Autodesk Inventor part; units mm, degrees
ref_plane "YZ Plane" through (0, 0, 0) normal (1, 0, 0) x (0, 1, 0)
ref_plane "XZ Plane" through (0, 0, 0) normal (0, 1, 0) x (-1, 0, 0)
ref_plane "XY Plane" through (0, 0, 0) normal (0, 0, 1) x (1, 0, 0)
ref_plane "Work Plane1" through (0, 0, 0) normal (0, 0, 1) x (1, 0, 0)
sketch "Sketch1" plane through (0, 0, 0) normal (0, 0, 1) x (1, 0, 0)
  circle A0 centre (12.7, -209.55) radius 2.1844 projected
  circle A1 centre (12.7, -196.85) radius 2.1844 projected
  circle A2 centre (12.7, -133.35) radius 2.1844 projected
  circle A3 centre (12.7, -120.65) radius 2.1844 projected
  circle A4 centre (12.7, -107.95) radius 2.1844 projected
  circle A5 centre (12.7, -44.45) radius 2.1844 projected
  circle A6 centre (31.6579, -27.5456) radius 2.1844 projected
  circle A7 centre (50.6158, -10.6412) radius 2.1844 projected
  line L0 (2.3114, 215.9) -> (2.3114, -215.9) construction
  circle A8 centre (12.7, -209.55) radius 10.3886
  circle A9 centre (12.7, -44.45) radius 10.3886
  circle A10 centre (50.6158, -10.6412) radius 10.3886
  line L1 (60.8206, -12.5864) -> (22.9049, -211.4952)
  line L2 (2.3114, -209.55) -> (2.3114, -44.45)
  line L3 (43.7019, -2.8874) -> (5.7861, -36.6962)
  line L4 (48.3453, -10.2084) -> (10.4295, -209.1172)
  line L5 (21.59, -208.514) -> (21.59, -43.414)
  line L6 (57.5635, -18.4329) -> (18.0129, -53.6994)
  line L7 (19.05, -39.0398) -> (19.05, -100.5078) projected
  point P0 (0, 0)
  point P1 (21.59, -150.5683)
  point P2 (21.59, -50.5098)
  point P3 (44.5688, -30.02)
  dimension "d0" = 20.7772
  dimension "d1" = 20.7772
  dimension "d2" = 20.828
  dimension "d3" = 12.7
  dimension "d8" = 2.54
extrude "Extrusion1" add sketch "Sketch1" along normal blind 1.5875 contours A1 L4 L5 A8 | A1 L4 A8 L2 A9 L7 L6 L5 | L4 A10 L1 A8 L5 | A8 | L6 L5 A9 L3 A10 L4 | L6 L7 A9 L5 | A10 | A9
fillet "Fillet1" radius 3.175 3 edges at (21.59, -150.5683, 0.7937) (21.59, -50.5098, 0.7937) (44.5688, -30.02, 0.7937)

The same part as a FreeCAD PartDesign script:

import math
import FreeCAD as App
import Part
import Sketcher

V = App.Vector
Q = App.Units.Quantity


def edges_at(feature, points):
    """Names of the edges that pass closest to the given points."""
    edges = feature.Shape.Edges
    near = lambda p: min(range(len(edges)), key=lambda i: edges[i].distToShape(Part.Vertex(*p))[0])
    return sorted({f"Edge{near(p) + 1}" for p in points})


def add_polygon(sketch, points):
    """Adds a closed chain of lines whose ends are joined by coincident constraints."""
    first, n = sketch.GeometryCount, len(points)
    for a, b in zip(points, points[1:] + points[:1]):
        sketch.addGeometry(Part.LineSegment(App.Vector(*a, 0), App.Vector(*b, 0)), False)
    for i in range(n):
        sketch.addConstraint(Sketcher.Constraint("Coincident", first + i, 2, first + (i + 1) % n, 1))

doc = App.newDocument("Part")
body = doc.addObject("PartDesign::Body", "Body")

sketch1 = doc.addObject("Sketcher::SketchObject", "Sketch")
body.addObject(sketch1)
sketch1.AttachmentSupport = (doc.XY_Plane, [""])
sketch1.MapMode = "FlatFace"
sketch1.addGeometry(Part.LineSegment(V(2.3114, -44.45, 0), V(2.3114, -209.55, 0)), False)
sketch1.addGeometry(Part.ArcOfCircle(Part.Circle(V(12.7, -209.55, 0), V(0, 0, 1), 10.3886), math.radians(180), math.radians(349.208066)), False)
sketch1.addGeometry(Part.LineSegment(V(22.9049, -211.4952, 0), V(60.8206, -12.5864, 0)), False)
sketch1.addGeometry(Part.ArcOfCircle(Part.Circle(V(50.6158, -10.6412, 0), V(0, 0, 1), 10.3886), math.radians(-10.792038), math.radians(131.722715)), False)
sketch1.addGeometry(Part.LineSegment(V(43.7019, -2.8874, 0), V(5.7861, -36.6962, 0)), False)
sketch1.addGeometry(Part.ArcOfCircle(Part.Circle(V(12.7, -44.45, 0), V(0, 0, 1), 10.3886), math.radians(131.722715), math.radians(180)), False)
sketch1.addGeometry(Part.Circle(V(12.7, -196.85, 0), V(0, 0, 1), 2.1844), False)
sketch1.addGeometry(Part.Circle(V(12.7, -120.65, 0), V(0, 0, 1), 2.1844), False)
add_polygon(sketch1, [(21.59, -150.568477), (21.59, -50.50977), (44.568834, -30.019991)])
sketch1.addGeometry(Part.Circle(V(12.7, -107.95, 0), V(0, 0, 1), 2.1844), False)
sketch1.addGeometry(Part.Circle(V(12.7, -133.35, 0), V(0, 0, 1), 2.1844), False)
sketch1.addGeometry(Part.Circle(V(12.7, -209.55, 0), V(0, 0, 1), 2.1844), False)
sketch1.addGeometry(Part.Circle(V(12.7, -44.45, 0), V(0, 0, 1), 2.1844), False)
sketch1.addGeometry(Part.Circle(V(31.6579, -27.5456, 0), V(0, 0, 1), 2.1844), False)
sketch1.addGeometry(Part.Circle(V(50.6158, -10.6412, 0), V(0, 0, 1), 2.1844), False)
sketch1.addConstraint(Sketcher.Constraint("Tangent", 0, 2, 1, 1))
sketch1.addConstraint(Sketcher.Constraint("Tangent", 1, 2, 2, 1))
sketch1.addConstraint(Sketcher.Constraint("Tangent", 2, 2, 3, 1))
sketch1.addConstraint(Sketcher.Constraint("Tangent", 3, 2, 4, 1))
sketch1.addConstraint(Sketcher.Constraint("Tangent", 4, 2, 5, 1))
sketch1.addConstraint(Sketcher.Constraint("Tangent", 5, 2, 0, 1))
sketch1.addConstraint(Sketcher.Constraint("Vertical", 0))
sketch1.addConstraint(Sketcher.Constraint("Vertical", 8))
sketch1.addConstraint(Sketcher.Constraint("Coincident", 13, 3, 1, 3))
sketch1.addConstraint(Sketcher.Constraint("Coincident", 14, 3, 5, 3))
sketch1.addConstraint(Sketcher.Constraint("Coincident", 16, 3, 3, 3))
sketch1.addConstraint(Sketcher.Constraint("Equal", 1, 3))
sketch1.addConstraint(Sketcher.Constraint("Equal", 3, 5))
sketch1.addConstraint(Sketcher.Constraint("Equal", 6, 7))
sketch1.addConstraint(Sketcher.Constraint("Equal", 7, 11))
sketch1.addConstraint(Sketcher.Constraint("Equal", 11, 12))
sketch1.addConstraint(Sketcher.Constraint("Equal", 12, 13))
sketch1.addConstraint(Sketcher.Constraint("Equal", 13, 14))
sketch1.addConstraint(Sketcher.Constraint("Equal", 14, 15))
sketch1.addConstraint(Sketcher.Constraint("Equal", 15, 16))
sketch1.addConstraint(Sketcher.Constraint("Parallel", 4, 9))
sketch1.addConstraint(Sketcher.Constraint("Parallel", 2, 10))
sketch1.addConstraint(Sketcher.Constraint("Vertical", 5, 3, 6, 3))
sketch1.addConstraint(Sketcher.Constraint("Vertical", 6, 3, 7, 3))
sketch1.addConstraint(Sketcher.Constraint("Vertical", 7, 3, 11, 3))
sketch1.addConstraint(Sketcher.Constraint("Vertical", 11, 3, 12, 3))
sketch1.addConstraint(Sketcher.Constraint("Radius", 1, Q("0.409 in")))
sketch1.addConstraint(Sketcher.Constraint("DistanceX", -1, 1, 1, 3, Q("0.5 in")))
sketch1.addConstraint(Sketcher.Constraint("DistanceY", 1, 3, 6, 3, Q("0.5 in")))
sketch1.addConstraint(Sketcher.Constraint("DistanceY", 7, 3, 11, 3, Q("0.5 in")))
sketch1.addConstraint(Sketcher.Constraint("DistanceY", 12, 3, 7, 3, Q("0.5 in")))
sketch1.addConstraint(Sketcher.Constraint("Distance", 4, Q("2 in")))
sketch1.addConstraint(Sketcher.Constraint("Diameter", 6, Q("0.172 in")))
sketch1.addConstraint(Sketcher.Constraint("DistanceY", 0, 2, 0, 1, Q("6.5 in")))
sketch1.addConstraint(Sketcher.Constraint("DistanceY", 6, 3, 7, 3, Q("3 in")))
sketch1.addConstraint(Sketcher.Constraint("DistanceY", 1, 3, -1, 1, Q("8.25 in")))
sketch1.addConstraint(Sketcher.Constraint("DistanceX", -1, 1, 8, 2, Q("0.85 in")))
sketch1.addConstraint(Sketcher.Constraint("Distance", 9, Q("1.2121 in")))
sketch1.addConstraint(Sketcher.Constraint("DistanceX", -1, 1, 2, 2, Q("2.3945 in")))
sketch1.addConstraint(Sketcher.Constraint("DistanceY", 9, 2, -1, 1, Q("1.1819 in")))
sketch1.addConstraint(Sketcher.Constraint("DistanceY", 15, 3, 3, 2, Q("0.9708 in")))
sketch1.addConstraint(Sketcher.Constraint("DistanceX", 15, 3, 9, 2, Q("0.5083 in")))
pad1 = doc.addObject("PartDesign::Pad", "Pad")
body.addObject(pad1)
pad1.Profile = sketch1
pad1.Length = Q("0.0625 in")
doc.recompute()

fillet = doc.addObject("PartDesign::Fillet", "Fillet")
body.addObject(fillet)
fillet.Base = (pad1, edges_at(pad1, [(21.59, -150.568, 0.794), (21.59, -50.51, 0.794), (44.569, -30.02, 0.794)]))
fillet.Radius = Q("0.125 in")

doc.recompute()
